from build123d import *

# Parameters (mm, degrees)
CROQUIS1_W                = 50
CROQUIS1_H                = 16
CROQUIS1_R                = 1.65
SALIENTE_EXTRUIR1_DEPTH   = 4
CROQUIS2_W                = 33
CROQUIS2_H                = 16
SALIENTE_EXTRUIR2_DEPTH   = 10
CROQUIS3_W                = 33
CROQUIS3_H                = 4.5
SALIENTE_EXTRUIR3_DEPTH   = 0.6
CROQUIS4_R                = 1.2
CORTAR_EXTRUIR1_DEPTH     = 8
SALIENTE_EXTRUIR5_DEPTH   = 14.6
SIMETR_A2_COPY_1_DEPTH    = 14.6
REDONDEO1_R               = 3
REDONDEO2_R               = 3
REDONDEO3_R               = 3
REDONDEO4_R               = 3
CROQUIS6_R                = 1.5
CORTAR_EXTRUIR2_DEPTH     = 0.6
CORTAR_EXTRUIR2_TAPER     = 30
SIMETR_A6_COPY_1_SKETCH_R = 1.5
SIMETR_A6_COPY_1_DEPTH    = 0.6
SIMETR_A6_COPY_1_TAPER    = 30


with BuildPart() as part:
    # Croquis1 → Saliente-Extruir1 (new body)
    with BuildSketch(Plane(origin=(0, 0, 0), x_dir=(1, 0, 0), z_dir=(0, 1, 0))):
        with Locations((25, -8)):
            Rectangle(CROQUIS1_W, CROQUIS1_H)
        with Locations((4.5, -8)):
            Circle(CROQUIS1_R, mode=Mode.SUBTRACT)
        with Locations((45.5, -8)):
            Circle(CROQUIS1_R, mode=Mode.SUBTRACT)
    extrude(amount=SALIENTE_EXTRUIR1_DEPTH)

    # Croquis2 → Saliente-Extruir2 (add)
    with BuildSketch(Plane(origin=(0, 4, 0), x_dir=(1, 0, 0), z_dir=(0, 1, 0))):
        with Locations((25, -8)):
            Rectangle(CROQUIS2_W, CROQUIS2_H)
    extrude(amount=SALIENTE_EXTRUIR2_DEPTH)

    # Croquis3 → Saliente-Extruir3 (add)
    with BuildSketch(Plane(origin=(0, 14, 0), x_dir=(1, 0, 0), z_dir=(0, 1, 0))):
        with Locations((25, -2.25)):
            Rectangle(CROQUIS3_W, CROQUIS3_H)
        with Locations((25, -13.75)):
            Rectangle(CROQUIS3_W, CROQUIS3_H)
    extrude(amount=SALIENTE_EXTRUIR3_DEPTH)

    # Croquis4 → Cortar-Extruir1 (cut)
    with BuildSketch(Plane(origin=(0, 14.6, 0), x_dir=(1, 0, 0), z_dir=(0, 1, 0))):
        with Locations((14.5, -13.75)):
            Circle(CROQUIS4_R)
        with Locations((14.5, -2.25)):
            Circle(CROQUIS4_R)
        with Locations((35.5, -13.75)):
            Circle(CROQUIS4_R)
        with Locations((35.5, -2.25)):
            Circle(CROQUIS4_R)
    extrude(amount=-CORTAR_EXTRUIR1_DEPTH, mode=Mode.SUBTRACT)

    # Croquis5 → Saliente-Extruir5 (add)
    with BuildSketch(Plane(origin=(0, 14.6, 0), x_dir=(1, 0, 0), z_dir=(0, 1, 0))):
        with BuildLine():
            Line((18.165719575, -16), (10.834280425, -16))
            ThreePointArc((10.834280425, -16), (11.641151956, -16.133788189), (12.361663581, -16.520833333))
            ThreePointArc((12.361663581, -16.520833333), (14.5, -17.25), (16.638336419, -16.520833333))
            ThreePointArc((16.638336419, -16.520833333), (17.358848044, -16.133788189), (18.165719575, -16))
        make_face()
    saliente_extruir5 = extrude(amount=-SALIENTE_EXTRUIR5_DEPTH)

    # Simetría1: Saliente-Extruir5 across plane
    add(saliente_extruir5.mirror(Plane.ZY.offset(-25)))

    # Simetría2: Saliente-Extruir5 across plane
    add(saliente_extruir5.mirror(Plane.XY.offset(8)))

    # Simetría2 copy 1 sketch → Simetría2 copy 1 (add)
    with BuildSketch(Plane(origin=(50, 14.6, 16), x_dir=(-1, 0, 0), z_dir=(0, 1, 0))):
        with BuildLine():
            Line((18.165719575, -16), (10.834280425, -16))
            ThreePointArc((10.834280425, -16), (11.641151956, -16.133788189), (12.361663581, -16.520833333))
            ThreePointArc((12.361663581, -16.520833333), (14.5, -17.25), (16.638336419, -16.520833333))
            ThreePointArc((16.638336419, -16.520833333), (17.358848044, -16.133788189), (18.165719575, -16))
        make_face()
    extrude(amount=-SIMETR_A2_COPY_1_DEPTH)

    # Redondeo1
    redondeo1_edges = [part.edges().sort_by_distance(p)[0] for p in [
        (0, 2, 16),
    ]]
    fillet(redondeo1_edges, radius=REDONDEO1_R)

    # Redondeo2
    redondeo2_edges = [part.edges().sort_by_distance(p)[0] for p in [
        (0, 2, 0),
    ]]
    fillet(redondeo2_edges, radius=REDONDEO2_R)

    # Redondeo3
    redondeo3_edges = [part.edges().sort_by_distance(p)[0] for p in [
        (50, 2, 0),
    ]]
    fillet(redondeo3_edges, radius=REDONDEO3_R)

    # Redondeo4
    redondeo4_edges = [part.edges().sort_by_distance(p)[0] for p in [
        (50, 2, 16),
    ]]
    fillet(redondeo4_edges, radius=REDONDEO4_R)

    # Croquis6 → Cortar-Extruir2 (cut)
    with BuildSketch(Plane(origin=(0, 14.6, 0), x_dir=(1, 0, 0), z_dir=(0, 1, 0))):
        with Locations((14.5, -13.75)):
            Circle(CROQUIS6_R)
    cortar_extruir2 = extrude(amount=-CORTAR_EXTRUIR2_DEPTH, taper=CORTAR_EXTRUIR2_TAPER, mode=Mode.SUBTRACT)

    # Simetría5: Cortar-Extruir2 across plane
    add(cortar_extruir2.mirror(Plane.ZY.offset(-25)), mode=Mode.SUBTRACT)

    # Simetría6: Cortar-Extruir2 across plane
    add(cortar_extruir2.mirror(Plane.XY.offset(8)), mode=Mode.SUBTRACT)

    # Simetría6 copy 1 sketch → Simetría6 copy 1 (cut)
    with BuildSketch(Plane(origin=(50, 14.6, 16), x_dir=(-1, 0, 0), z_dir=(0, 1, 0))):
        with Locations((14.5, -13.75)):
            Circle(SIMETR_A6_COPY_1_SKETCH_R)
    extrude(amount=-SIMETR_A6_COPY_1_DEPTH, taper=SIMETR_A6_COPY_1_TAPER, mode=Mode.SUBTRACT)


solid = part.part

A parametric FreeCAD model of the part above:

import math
import FreeCAD as App
import Part
import Sketcher


def edges_at(feature, points):
    """Names of the edges that pass closest to the given points."""
    edges = feature.Shape.Edges
    near = lambda p: min(range(len(edges)), key=lambda i: edges[i].distToShape(Part.Vertex(*p))[0])
    return sorted({f"Edge{near(p) + 1}" for p in points})


def add_polygon(sketch, points):
    """Adds a closed chain of lines whose ends are joined by coincident constraints."""
    first, n = sketch.GeometryCount, len(points)
    for a, b in zip(points, points[1:] + points[:1]):
        sketch.addGeometry(Part.LineSegment(App.Vector(*a, 0), App.Vector(*b, 0)), False)
    for i in range(n):
        sketch.addConstraint(Sketcher.Constraint("Coincident", first + i, 2, first + (i + 1) % n, 1))

doc = App.newDocument("Part")
body = doc.addObject("PartDesign::Body", "Body")

# Sketch on XZ plane
sketch1 = body.newObject("Sketcher::SketchObject", "Sketch")
sketch1.AttachmentSupport = (doc.getObject("XZ_Plane"), [""])
sketch1.MapMode = "FlatFace"
add_polygon(sketch1, [(0, 0), (0, 16), (50, 16), (50, 0)])  # lines 0-3
sketch1.addGeometry(Part.Circle(App.Vector(4.5, 8, 0), App.Vector(0, 0, 1), 1.6), False)  # 4
sketch1.addGeometry(Part.Circle(App.Vector(45.5, 8, 0), App.Vector(0, 0, 1), 1.6), False)  # 5
sketch1.addConstraint(Sketcher.Constraint("Vertical", 0))
sketch1.addConstraint(Sketcher.Constraint("Horizontal", 1))
sketch1.addConstraint(Sketcher.Constraint("Vertical", 2))
sketch1.addConstraint(Sketcher.Constraint("Horizontal", 3))
sketch1.addConstraint(Sketcher.Constraint("Coincident", 3, 2, -1, 1))
sketch1.addConstraint(Sketcher.Constraint("Equal", 4, 5))
sketch1.addConstraint(Sketcher.Constraint("Horizontal", 4, 3, 5, 3))
sketch1.addConstraint(Sketcher.Constraint("Diameter", 4, 3.3))
sketch1.addConstraint(Sketcher.Constraint("DistanceX", 1, 1, 1, 2, 50.0))
sketch1.addConstraint(Sketcher.Constraint("DistanceY", 0, 1, 0, 2, 16.0))
sketch1.addConstraint(Sketcher.Constraint("DistanceY", -1, 1, 4, 3, 8.0))
sketch1.addConstraint(Sketcher.Constraint("DistanceX", 4, 3, 5, 3, 41.0))
sketch1.addConstraint(Sketcher.Constraint("DistanceX", -1, 1, 4, 3, 4.5))
pad1 = body.newObject("PartDesign::Pad", "Pad")
pad1.Profile = sketch1
pad1.Length = 4
pad1.Reversed = True

# Sketch on XZ plane
sketch2 = body.newObject("Sketcher::SketchObject", "Sketch001")
sketch2.AttachmentSupport = (doc.getObject("XZ_Plane"), [""])
sketch2.MapMode = "FlatFace"
sketch2.AttachmentOffset = App.Placement(App.Vector(0, 0, -4), App.Rotation())
add_polygon(sketch2, [(8, 0), (8, 16), (42, 16), (42, 0)])  # lines 0-3
sketch2.addConstraint(Sketcher.Constraint("Vertical", 0))
sketch2.addConstraint(Sketcher.Constraint("Horizontal", 1))
sketch2.addConstraint(Sketcher.Constraint("Vertical", 2))
sketch2.addConstraint(Sketcher.Constraint("Horizontal", 3))
sketch2.addConstraint(Sketcher.Constraint("PointOnObject", 2, 2, -1))
sketch2.addConstraint(Sketcher.Constraint("DistanceX", 1, 1, 1, 2, 33.0))
sketch2.addConstraint(Sketcher.Constraint("DistanceY", 0, 1, 0, 2, 16.0))
sketch2.addConstraint(Sketcher.Constraint("DistanceX", -1, 1, 0, 2, 8.5))
pad2 = body.newObject("PartDesign::Pad", "Pad001")
pad2.Profile = sketch2
pad2.Length = 10
pad2.Reversed = True

# Sketch on XZ plane
sketch3 = body.newObject("Sketcher::SketchObject", "Sketch002")
sketch3.AttachmentSupport = (doc.getObject("XZ_Plane"), [""])
sketch3.MapMode = "FlatFace"
sketch3.AttachmentOffset = App.Placement(App.Vector(0, 0, -14), App.Rotation())
add_polygon(sketch3, [(8.5, 0), (8.5, 4.5), (41.5, 4.5), (41.5, 0)])  # lines 0-3
add_polygon(sketch3, [(8.5, 11.5), (8.5, 16), (41.5, 16), (41.5, 11.5)])  # lines 4-7
sketch3.addConstraint(Sketcher.Constraint("Vertical", 0))
sketch3.addConstraint(Sketcher.Constraint("Horizontal", 1))
sketch3.addConstraint(Sketcher.Constraint("Vertical", 2))
sketch3.addConstraint(Sketcher.Constraint("Horizontal", 3))
sketch3.addConstraint(Sketcher.Constraint("Vertical", 4))
sketch3.addConstraint(Sketcher.Constraint("Horizontal", 5))
sketch3.addConstraint(Sketcher.Constraint("Vertical", 6))
sketch3.addConstraint(Sketcher.Constraint("Horizontal", 7))
sketch3.addConstraint(Sketcher.Constraint("PointOnObject", 2, 2, -1))
sketch3.addConstraint(Sketcher.Constraint("Vertical", 3, 2, 4, 2))
sketch3.addConstraint(Sketcher.Constraint("Vertical", 2, 2, 5, 2))
sketch3.addConstraint(Sketcher.Constraint("Equal", 2, 4))
sketch3.addConstraint(Sketcher.Constraint("DistanceX", 1, 1, 1, 2, 33.0))
sketch3.addConstraint(Sketcher.Constraint("DistanceY", 0, 1, 0, 2, 4.5))
sketch3.addConstraint(Sketcher.Constraint("DistanceY", -1, 1, 4, 2, 16.0))
sketch3.addConstraint(Sketcher.Constraint("DistanceX", -1, 1, 0, 2, 8.5))
pad3 = body.newObject("PartDesign::Pad", "Pad002")
pad3.Profile = sketch3
pad3.Length = 0.6
pad3.Reversed = True

# Sketch on XZ plane
sketch4 = body.newObject("Sketcher::SketchObject", "Sketch003")
sketch4.AttachmentSupport = (doc.getObject("XZ_Plane"), [""])
sketch4.MapMode = "FlatFace"
sketch4.AttachmentOffset = App.Placement(App.Vector(0, 0, -14.6), App.Rotation())
sketch4.addGeometry(Part.Circle(App.Vector(14.5, 13.8, 0), App.Vector(0, 0, 1), 1.2), False)
sketch4.addGeometry(Part.Circle(App.Vector(14.5, 2.2, 0), App.Vector(0, 0, 1), 1.2), False)
sketch4.addGeometry(Part.Circle(App.Vector(35.5, 13.8, 0), App.Vector(0, 0, 1), 1.2), False)
sketch4.addGeometry(Part.Circle(App.Vector(35.5, 2.2, 0), App.Vector(0, 0, 1), 1.2), False)
sketch4.addConstraint(Sketcher.Constraint("Equal", 0, 1))
sketch4.addConstraint(Sketcher.Constraint("Equal", 1, 2))
sketch4.addConstraint(Sketcher.Constraint("Equal", 2, 3))
sketch4.addConstraint(Sketcher.Constraint("Horizontal", 0, 3, 2, 3))
sketch4.addConstraint(Sketcher.Constraint("Horizontal", 1, 3, 3, 3))
sketch4.addConstraint(Sketcher.Constraint("Vertical", 0, 3, 1, 3))
sketch4.addConstraint(Sketcher.Constraint("Vertical", 2, 3, 3, 3))
sketch4.addConstraint(Sketcher.Constraint("Diameter", 0, 2.4))
sketch4.addConstraint(Sketcher.Constraint("DistanceX", 0, 3, 2, 3, 21.0))
sketch4.addConstraint(Sketcher.Constraint("DistanceX", -1, 1, 0, 3, 14.5))
sketch4.addConstraint(Sketcher.Constraint("DistanceY", 1, 3, 0, 3, 11.5))
sketch4.addConstraint(Sketcher.Constraint("DistanceY", -1, 1, 0, 3, 13.75))
pocket1 = body.newObject("PartDesign::Pocket", "Pocket")
pocket1.Profile = sketch4
pocket1.Length = 8
pocket1.Reversed = True

# Sketch on XZ plane
sketch5 = body.newObject("Sketcher::SketchObject", "Sketch004")
sketch5.AttachmentSupport = (doc.getObject("XZ_Plane"), [""])
sketch5.MapMode = "FlatFace"
sketch5.AttachmentOffset = App.Placement(App.Vector(0, 0, -14.6), App.Rotation())
sketch5.addGeometry(Part.LineSegment(App.Vector(18.2, 16, 0), App.Vector(10.8, 16, 0)), False)
sketch5.addGeometry(Part.ArcOfCircle(Part.Circle(App.Vector(10.8, 18.5, 0), App.Vector(0, 0, 1), 2.5), math.radians(-90), math.radians(-52)), False)
sketch5.addGeometry(Part.ArcOfCircle(Part.Circle(App.Vector(14.5, 13.8, 0), App.Vector(0, 0, 1), 3.5), math.radians(52), math.radians(128)), False)
sketch5.addGeometry(Part.ArcOfCircle(Part.Circle(App.Vector(18.2, 18.5, 0), App.Vector(0, 0, 1), 2.5), math.radians(-128), math.radians(-90)), False)
sketch5.addConstraint(Sketcher.Constraint("Tangent", 0, 2, 1, 1))
sketch5.addConstraint(Sketcher.Constraint("Tangent", 1, 2, 2, 2))
sketch5.addConstraint(Sketcher.Constraint("Tangent", 2, 1, 3, 1))
sketch5.addConstraint(Sketcher.Constraint("Tangent", 3, 2, 0, 1))
sketch5.addConstraint(Sketcher.Constraint("Horizontal", 0))
sketch5.addConstraint(Sketcher.Constraint("Equal", 1, 3))
sketch5.addConstraint(Sketcher.Constraint("Radius", 1, 2.5))
sketch5.addConstraint(Sketcher.Constraint("Radius", 2, 3.5))
sketch5.addConstraint(Sketcher.Constraint("DistanceY", -1, 1, 0, 2, 16.0))
sketch5.addConstraint(Sketcher.Constraint("DistanceX", -1, 1, 2, 3, 14.5))
sketch5.addConstraint(Sketcher.Constraint("DistanceY", -1, 1, 2, 3, 13.75))
pad4 = body.newObject("PartDesign::Pad", "Pad003")
pad4.Profile = sketch5
pad4.Length = 14.6
doc.recompute()

datumplane = body.newObject("PartDesign::Plane", "DatumPlane")
datumplane.AttachmentSupport = (doc.getObject("YZ_Plane"), [""])
datumplane.MapMode = "FlatFace"
datumplane.AttachmentOffset = App.Placement(App.Vector(0, 0, 25), App.Rotation())
mirrored = body.newObject("PartDesign::Mirrored", "Mirrored")
mirrored.Originals = [pad4]
mirrored.MirrorPlane = (datumplane, [""])
body.Tip = mirrored
doc.recompute()

datumplane2 = body.newObject("PartDesign::Plane", "DatumPlane001")
datumplane2.AttachmentSupport = (doc.getObject("XY_Plane"), [""])
datumplane2.MapMode = "FlatFace"
datumplane2.AttachmentOffset = App.Placement(App.Vector(0, 0, 8), App.Rotation())
mirrored2 = body.newObject("PartDesign::Mirrored", "Mirrored001")
mirrored2.Originals = [pad4]
mirrored2.MirrorPlane = (datumplane2, [""])
body.Tip = mirrored2

# Sketch on XZ plane
sketch6 = body.newObject("Sketcher::SketchObject", "Sketch005")
sketch6.AttachmentSupport = (doc.getObject("XZ_Plane"), [""])
sketch6.MapMode = "FlatFace"
sketch6.AttachmentOffset = App.Placement(App.Vector(0, 0, -14.6), App.Rotation())
sketch6.addGeometry(Part.LineSegment(App.Vector(31.8, 0, 0), App.Vector(39.2, 0, 0)), False)
sketch6.addGeometry(Part.ArcOfCircle(Part.Circle(App.Vector(39.2, -2.5, 0), App.Vector(0, 0, 1), 2.5), math.radians(90), math.radians(128)), False)
sketch6.addGeometry(Part.ArcOfCircle(Part.Circle(App.Vector(35.5, 2.2, 0), App.Vector(0, 0, 1), 3.5), math.radians(-128), math.radians(-52)), False)
sketch6.addGeometry(Part.ArcOfCircle(Part.Circle(App.Vector(31.8, -2.5, 0), App.Vector(0, 0, 1), 2.5), math.radians(52), math.radians(90)), False)
sketch6.addConstraint(Sketcher.Constraint("Tangent", 0, 2, 1, 1))
sketch6.addConstraint(Sketcher.Constraint("Tangent", 1, 2, 2, 2))
sketch6.addConstraint(Sketcher.Constraint("Tangent", 2, 1, 3, 1))
sketch6.addConstraint(Sketcher.Constraint("Tangent", 3, 2, 0, 1))
sketch6.addConstraint(Sketcher.Constraint("Horizontal", 0))
sketch6.addConstraint(Sketcher.Constraint("Equal", 1, 3))
sketch6.addConstraint(Sketcher.Constraint("PointOnObject", 0, 2, -1))
sketch6.addConstraint(Sketcher.Constraint("Radius", 1, 2.5))
sketch6.addConstraint(Sketcher.Constraint("Radius", 2, 3.5))
sketch6.addConstraint(Sketcher.Constraint("DistanceX", -1, 1, 2, 3, 35.5))
sketch6.addConstraint(Sketcher.Constraint("DistanceY", -1, 1, 2, 3, 2.25))
pad5 = body.newObject("PartDesign::Pad", "Pad004")
pad5.Profile = sketch6
pad5.Length = 14.6
doc.recompute()

fillet = body.newObject("PartDesign::Fillet", "Fillet")
fillet.Base = (pad5, edges_at(pad5, [(0, 2, 16)]))
fillet.Radius = 3
doc.recompute()

fillet2 = body.newObject("PartDesign::Fillet", "Fillet001")
fillet2.Base = (fillet, edges_at(fillet, [(0, 2, 0)]))
fillet2.Radius = 3
doc.recompute()

fillet3 = body.newObject("PartDesign::Fillet", "Fillet002")
fillet3.Base = (fillet2, edges_at(fillet2, [(50, 2, 0)]))
fillet3.Radius = 3
doc.recompute()

fillet4 = body.newObject("PartDesign::Fillet", "Fillet003")
fillet4.Base = (fillet3, edges_at(fillet3, [(50, 2, 16)]))
fillet4.Radius = 3

# Sketch on XZ plane
sketch7 = body.newObject("Sketcher::SketchObject", "Sketch006")
sketch7.AttachmentSupport = (doc.getObject("XZ_Plane"), [""])
sketch7.MapMode = "FlatFace"
sketch7.AttachmentOffset = App.Placement(App.Vector(0, 0, -14.6), App.Rotation())
sketch7.addGeometry(Part.Circle(App.Vector(14.5, 13.8, 0), App.Vector(0, 0, 1), 1.5), False)
sketch7.addConstraint(Sketcher.Constraint("Diameter", 0, 3.0))
sketch7.addConstraint(Sketcher.Constraint("DistanceX", -1, 1, 0, 3, 14.5))
sketch7.addConstraint(Sketcher.Constraint("DistanceY", -1, 1, 0, 3, 13.75))
pocket2 = body.newObject("PartDesign::Pocket", "Pocket001")
pocket2.Profile = sketch7
pocket2.Length = 0.6
pocket2.Reversed = True
pocket2.TaperAngle = -30
doc.recompute()

datumplane3 = body.newObject("PartDesign::Plane", "DatumPlane002")
datumplane3.AttachmentSupport = (doc.getObject("YZ_Plane"), [""])
datumplane3.MapMode = "FlatFace"
datumplane3.AttachmentOffset = App.Placement(App.Vector(0, 0, 25), App.Rotation())
mirrored3 = body.newObject("PartDesign::Mirrored", "Mirrored002")
mirrored3.Originals = [pocket2]
mirrored3.MirrorPlane = (datumplane3, [""])
body.Tip = mirrored3
doc.recompute()

datumplane4 = body.newObject("PartDesign::Plane", "DatumPlane003")
datumplane4.AttachmentSupport = (doc.getObject("XY_Plane"), [""])
datumplane4.MapMode = "FlatFace"
datumplane4.AttachmentOffset = App.Placement(App.Vector(0, 0, 8), App.Rotation())
mirrored4 = body.newObject("PartDesign::Mirrored", "Mirrored003")
mirrored4.Originals = [pocket2]
mirrored4.MirrorPlane = (datumplane4, [""])
body.Tip = mirrored4

# Sketch on XZ plane
sketch8 = body.newObject("Sketcher::SketchObject", "Sketch007")
sketch8.AttachmentSupport = (doc.getObject("XZ_Plane"), [""])
sketch8.MapMode = "FlatFace"
sketch8.AttachmentOffset = App.Placement(App.Vector(0, 0, -14.6), App.Rotation())
sketch8.addGeometry(Part.Circle(App.Vector(35.5, 2.2, 0), App.Vector(0, 0, 1), 1.5), False)
sketch8.addConstraint(Sketcher.Constraint("Diameter", 0, 3.0))
sketch8.addConstraint(Sketcher.Constraint("DistanceX", -1, 1, 0, 3, 35.5))
sketch8.addConstraint(Sketcher.Constraint("DistanceY", -1, 1, 0, 3, 2.25))
pocket3 = body.newObject("PartDesign::Pocket", "Pocket002")
pocket3.Profile = sketch8
pocket3.Length = 0.6
pocket3.Reversed = True
pocket3.TaperAngle = -30

doc.recompute()
